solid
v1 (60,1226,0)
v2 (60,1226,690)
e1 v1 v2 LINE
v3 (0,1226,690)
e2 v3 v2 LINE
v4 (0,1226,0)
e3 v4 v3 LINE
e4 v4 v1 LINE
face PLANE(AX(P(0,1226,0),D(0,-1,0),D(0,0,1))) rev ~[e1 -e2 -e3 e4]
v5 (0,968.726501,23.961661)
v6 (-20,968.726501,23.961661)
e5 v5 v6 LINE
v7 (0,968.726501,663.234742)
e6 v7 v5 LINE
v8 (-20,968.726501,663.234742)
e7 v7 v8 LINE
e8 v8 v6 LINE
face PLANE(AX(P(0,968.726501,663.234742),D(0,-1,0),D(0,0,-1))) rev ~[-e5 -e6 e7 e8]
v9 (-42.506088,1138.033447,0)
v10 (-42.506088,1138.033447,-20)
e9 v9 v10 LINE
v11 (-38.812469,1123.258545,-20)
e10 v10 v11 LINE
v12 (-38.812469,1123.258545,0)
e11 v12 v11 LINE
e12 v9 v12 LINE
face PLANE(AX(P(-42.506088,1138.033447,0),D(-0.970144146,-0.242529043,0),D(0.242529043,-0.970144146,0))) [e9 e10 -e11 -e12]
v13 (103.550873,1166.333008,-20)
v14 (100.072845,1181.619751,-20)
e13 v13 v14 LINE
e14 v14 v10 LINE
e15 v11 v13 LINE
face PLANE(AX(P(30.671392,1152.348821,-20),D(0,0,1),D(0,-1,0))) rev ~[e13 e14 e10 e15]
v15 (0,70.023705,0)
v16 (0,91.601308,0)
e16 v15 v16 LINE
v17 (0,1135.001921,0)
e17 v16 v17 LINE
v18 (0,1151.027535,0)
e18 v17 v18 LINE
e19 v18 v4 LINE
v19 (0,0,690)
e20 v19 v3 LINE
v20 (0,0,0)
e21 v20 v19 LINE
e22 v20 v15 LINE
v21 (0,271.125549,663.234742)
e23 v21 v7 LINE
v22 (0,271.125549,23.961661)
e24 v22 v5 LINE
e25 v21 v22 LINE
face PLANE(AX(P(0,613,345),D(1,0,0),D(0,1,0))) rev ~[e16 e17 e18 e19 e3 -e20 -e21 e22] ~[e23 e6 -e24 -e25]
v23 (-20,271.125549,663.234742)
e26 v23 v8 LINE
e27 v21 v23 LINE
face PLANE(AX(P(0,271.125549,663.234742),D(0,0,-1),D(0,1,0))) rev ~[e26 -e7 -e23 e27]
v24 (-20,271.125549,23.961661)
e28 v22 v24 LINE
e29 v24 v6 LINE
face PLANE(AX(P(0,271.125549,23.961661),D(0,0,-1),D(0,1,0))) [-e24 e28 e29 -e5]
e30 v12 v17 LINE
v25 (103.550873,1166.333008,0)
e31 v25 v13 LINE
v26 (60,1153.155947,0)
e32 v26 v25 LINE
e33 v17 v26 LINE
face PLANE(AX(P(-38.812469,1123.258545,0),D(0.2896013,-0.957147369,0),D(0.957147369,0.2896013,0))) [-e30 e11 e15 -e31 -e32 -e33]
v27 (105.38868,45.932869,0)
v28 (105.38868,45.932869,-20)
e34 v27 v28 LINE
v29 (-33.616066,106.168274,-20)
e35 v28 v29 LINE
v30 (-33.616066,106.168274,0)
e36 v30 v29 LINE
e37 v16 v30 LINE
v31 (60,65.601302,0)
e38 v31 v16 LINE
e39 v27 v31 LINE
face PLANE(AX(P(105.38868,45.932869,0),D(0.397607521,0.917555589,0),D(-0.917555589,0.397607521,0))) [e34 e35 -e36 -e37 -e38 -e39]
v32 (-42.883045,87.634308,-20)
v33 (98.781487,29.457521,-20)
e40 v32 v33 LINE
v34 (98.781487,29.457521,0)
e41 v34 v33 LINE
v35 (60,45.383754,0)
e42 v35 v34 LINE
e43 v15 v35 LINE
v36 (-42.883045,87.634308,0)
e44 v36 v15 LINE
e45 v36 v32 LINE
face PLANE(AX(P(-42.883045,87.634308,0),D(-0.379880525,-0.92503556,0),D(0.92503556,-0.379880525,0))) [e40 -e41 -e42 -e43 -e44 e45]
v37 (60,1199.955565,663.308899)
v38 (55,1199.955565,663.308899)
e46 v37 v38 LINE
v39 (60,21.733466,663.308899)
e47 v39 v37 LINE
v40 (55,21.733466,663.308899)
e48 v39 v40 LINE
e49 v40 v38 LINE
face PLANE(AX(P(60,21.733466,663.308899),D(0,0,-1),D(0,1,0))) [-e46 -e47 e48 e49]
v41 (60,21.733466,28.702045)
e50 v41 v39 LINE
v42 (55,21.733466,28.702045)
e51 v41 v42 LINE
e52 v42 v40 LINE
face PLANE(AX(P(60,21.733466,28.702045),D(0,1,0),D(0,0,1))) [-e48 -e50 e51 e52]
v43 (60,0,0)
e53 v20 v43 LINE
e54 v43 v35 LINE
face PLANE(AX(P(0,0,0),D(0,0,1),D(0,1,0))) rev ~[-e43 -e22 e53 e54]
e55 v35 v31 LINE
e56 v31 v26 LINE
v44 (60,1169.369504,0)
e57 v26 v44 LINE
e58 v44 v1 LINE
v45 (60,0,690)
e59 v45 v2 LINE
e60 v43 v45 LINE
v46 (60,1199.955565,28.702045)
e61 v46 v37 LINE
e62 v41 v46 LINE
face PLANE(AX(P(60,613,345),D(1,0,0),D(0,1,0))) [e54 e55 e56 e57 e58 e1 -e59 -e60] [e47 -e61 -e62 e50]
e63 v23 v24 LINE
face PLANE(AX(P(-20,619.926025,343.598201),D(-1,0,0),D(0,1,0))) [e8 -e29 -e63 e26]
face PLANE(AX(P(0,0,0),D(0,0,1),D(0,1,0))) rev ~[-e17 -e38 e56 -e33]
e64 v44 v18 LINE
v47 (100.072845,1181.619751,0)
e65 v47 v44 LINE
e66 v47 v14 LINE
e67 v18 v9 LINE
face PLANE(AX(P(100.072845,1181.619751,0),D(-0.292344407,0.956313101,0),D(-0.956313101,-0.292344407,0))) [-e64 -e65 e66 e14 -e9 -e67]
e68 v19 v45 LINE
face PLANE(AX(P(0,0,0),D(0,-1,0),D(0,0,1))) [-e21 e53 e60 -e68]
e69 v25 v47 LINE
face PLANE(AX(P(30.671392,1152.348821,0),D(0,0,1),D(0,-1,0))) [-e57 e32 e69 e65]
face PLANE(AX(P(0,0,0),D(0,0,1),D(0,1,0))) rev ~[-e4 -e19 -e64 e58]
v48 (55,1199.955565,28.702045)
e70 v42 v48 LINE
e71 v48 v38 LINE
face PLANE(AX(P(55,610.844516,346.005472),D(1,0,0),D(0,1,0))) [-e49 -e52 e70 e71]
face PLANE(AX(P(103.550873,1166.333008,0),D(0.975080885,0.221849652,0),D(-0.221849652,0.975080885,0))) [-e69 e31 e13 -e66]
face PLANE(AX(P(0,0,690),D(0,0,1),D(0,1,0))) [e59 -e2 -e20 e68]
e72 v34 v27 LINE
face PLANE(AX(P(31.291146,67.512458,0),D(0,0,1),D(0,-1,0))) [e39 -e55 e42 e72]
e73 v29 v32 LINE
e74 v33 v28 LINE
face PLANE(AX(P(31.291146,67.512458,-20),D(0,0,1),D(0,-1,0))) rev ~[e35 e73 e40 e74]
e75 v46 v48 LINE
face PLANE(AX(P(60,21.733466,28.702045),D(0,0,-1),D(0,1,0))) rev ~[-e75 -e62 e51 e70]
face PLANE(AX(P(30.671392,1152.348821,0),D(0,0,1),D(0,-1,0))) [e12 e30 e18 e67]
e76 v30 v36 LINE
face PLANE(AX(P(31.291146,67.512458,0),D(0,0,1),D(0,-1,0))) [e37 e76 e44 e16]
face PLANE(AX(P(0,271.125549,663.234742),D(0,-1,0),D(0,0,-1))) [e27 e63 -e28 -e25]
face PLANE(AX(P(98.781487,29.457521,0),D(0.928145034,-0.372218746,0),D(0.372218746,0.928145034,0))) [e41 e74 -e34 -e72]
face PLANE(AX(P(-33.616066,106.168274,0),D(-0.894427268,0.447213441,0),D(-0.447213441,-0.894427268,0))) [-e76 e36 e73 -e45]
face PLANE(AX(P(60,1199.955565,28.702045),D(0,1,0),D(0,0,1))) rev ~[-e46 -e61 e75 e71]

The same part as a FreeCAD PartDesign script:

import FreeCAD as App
import Part
import Sketcher
Q = App.Units.Quantity


def add_polygon(sketch, points):
    """Adds a closed chain of lines whose ends are joined by coincident constraints."""
    first, n = sketch.GeometryCount, len(points)
    for a, b in zip(points, points[1:] + points[:1]):
        sketch.addGeometry(Part.LineSegment(App.Vector(*a, 0), App.Vector(*b, 0)), False)
    for i in range(n):
        sketch.addConstraint(Sketcher.Constraint("Coincident", first + i, 2, first + (i + 1) % n, 1))

doc = App.newDocument("Part")
body = doc.addObject("PartDesign::Body", "Body")

# Sketch on YZ plane
sketch1 = body.newObject("Sketcher::SketchObject", "Sketch")
sketch1.AttachmentSupport = (doc.getObject("YZ_Plane"), [""])
sketch1.MapMode = "FlatFace"
add_polygon(sketch1, [(0, 690), (0, 0), (1226, 0), (1226, 690)])  # lines 0-3
sketch1.addConstraint(Sketcher.Constraint("Vertical", 0))
sketch1.addConstraint(Sketcher.Constraint("Horizontal", 1))
sketch1.addConstraint(Sketcher.Constraint("Vertical", 2))
sketch1.addConstraint(Sketcher.Constraint("Horizontal", 3))
sketch1.addConstraint(Sketcher.Constraint("Coincident", 0, 2, -1, 1))
sketch1.addConstraint(Sketcher.Constraint("DistanceX", 1, 1, 1, 2, Q("1226 mm")))
sketch1.addConstraint(Sketcher.Constraint("DistanceY", 0, 2, 0, 1, Q("690 mm")))
pad1 = body.newObject("PartDesign::Pad", "Pad")
pad1.Profile = sketch1
pad1.Length = 60

# Sketch on YZ plane
sketch2 = body.newObject("Sketcher::SketchObject", "Sketch001")
sketch2.AttachmentSupport = (doc.getObject("YZ_Plane"), [""])
sketch2.MapMode = "FlatFace"
sketch2.AttachmentOffset = App.Placement(App.Vector(0, 0, 60), App.Rotation())
add_polygon(sketch2, [(21.733466, 663.308899), (21.733466, 28.702045), (1199.955565, 28.702045), (1199.955565, 663.308899)])  # lines 0-3
sketch2.addConstraint(Sketcher.Constraint("Vertical", 0))
sketch2.addConstraint(Sketcher.Constraint("Horizontal", 1))
sketch2.addConstraint(Sketcher.Constraint("Vertical", 2))
sketch2.addConstraint(Sketcher.Constraint("Horizontal", 3))
sketch2.addConstraint(Sketcher.Constraint("DistanceX", 1, 1, 1, 2, Q("1178.222099 mm")))
sketch2.addConstraint(Sketcher.Constraint("DistanceY", -1, 1, 2, 2, Q("663.308899 mm")))
sketch2.addConstraint(Sketcher.Constraint("DistanceY", 0, 2, 0, 1, Q("634.606854 mm")))
sketch2.addConstraint(Sketcher.Constraint("DistanceX", -1, 1, 0, 2, Q("21.733466 mm")))
pocket1 = body.newObject("PartDesign::Pocket", "Pocket")
pocket1.Profile = sketch2
pocket1.Length = 5

# Sketch on YZ plane
sketch3 = body.newObject("Sketcher::SketchObject", "Sketch002")
sketch3.AttachmentSupport = (doc.getObject("YZ_Plane"), [""])
sketch3.MapMode = "FlatFace"
add_polygon(sketch3, [(271.125549, 23.961661), (271.125549, 663.234742), (968.726501, 663.234742), (968.726501, 23.961661)])  # lines 0-3
sketch3.addConstraint(Sketcher.Constraint("Vertical", 0))
sketch3.addConstraint(Sketcher.Constraint("Horizontal", 1))
sketch3.addConstraint(Sketcher.Constraint("Vertical", 2))
sketch3.addConstraint(Sketcher.Constraint("Horizontal", 3))
sketch3.addConstraint(Sketcher.Constraint("DistanceX", 1, 1, 1, 2, Q("697.600952 mm")))
sketch3.addConstraint(Sketcher.Constraint("DistanceY", 0, 1, 0, 2, Q("639.273081 mm")))
sketch3.addConstraint(Sketcher.Constraint("DistanceX", -1, 1, 1, 2, Q("968.726501 mm")))
sketch3.addConstraint(Sketcher.Constraint("DistanceY", -1, 1, 0, 2, Q("663.234742 mm")))
pad2 = body.newObject("PartDesign::Pad", "Pad001")
pad2.Profile = sketch3
pad2.Length = 20
pad2.Reversed = True

# Sketch on XY plane
sketch4 = body.newObject("Sketcher::SketchObject", "Sketch003")
sketch4.AttachmentSupport = (doc.getObject("XY_Plane"), [""])
sketch4.MapMode = "FlatFace"
add_polygon(sketch4, [(98.781487, 29.457521), (-42.883045, 87.634308), (-33.616066, 106.168274), (105.38868, 45.932869)])  # lines 0-3
add_polygon(sketch4, [(103.550873, 1166.333008), (-38.812469, 1123.258545), (-42.506088, 1138.033447), (100.072845, 1181.619751)])  # lines 4-7
sketch4.addConstraint(Sketcher.Constraint("DistanceY", 0, 2, 7, 2, Q("1078.6987 mm")))
sketch4.addConstraint(Sketcher.Constraint("Distance", 0, Q("153.144958 mm")))
sketch4.addConstraint(Sketcher.Constraint("Distance", 2, Q("151.494632 mm")))
sketch4.addConstraint(Sketcher.Constraint("Distance", 4, Q("148.737119 mm")))
sketch4.addConstraint(Sketcher.Constraint("Distance", 7, Q("15.67741 mm")))
sketch4.addConstraint(Sketcher.Constraint("DistanceY", -1, 1, 0, 2, Q("87.634308 mm")))
sketch4.addConstraint(Sketcher.Constraint("DistanceX", -1, 1, 2, 2, Q("105.38868 mm")))
sketch4.addConstraint(Sketcher.Constraint("DistanceY", -1, 1, 2, 2, Q("45.932869 mm")))
sketch4.addConstraint(Sketcher.Constraint("DistanceY", -1, 1, 3, 2, Q("29.457521 mm")))
sketch4.addConstraint(Sketcher.Constraint("DistanceX", 4, 2, -1, 1, Q("38.812469 mm")))
sketch4.addConstraint(Sketcher.Constraint("DistanceY", -1, 1, 6, 2, Q("1181.619751 mm")))
sketch4.addConstraint(Sketcher.Constraint("DistanceX", 0, 2, 1, 2, Q("9.266979 mm")))
sketch4.addConstraint(Sketcher.Constraint("DistanceY", 1, 2, 4, 2, Q("1017.090271 mm")))
sketch4.addConstraint(Sketcher.Constraint("DistanceX", 5, 2, 4, 2, Q("3.693619 mm")))
sketch4.addConstraint(Sketcher.Constraint("DistanceY", 0, 2, 5, 2, Q("1050.399139 mm")))
sketch4.addConstraint(Sketcher.Constraint("DistanceX", 1, 2, 6, 2, Q("133.688911 mm")))
pad3 = body.newObject("PartDesign::Pad", "Pad002")
pad3.Profile = sketch4
pad3.Length = 20
pad3.Reversed = True

doc.recompute()
